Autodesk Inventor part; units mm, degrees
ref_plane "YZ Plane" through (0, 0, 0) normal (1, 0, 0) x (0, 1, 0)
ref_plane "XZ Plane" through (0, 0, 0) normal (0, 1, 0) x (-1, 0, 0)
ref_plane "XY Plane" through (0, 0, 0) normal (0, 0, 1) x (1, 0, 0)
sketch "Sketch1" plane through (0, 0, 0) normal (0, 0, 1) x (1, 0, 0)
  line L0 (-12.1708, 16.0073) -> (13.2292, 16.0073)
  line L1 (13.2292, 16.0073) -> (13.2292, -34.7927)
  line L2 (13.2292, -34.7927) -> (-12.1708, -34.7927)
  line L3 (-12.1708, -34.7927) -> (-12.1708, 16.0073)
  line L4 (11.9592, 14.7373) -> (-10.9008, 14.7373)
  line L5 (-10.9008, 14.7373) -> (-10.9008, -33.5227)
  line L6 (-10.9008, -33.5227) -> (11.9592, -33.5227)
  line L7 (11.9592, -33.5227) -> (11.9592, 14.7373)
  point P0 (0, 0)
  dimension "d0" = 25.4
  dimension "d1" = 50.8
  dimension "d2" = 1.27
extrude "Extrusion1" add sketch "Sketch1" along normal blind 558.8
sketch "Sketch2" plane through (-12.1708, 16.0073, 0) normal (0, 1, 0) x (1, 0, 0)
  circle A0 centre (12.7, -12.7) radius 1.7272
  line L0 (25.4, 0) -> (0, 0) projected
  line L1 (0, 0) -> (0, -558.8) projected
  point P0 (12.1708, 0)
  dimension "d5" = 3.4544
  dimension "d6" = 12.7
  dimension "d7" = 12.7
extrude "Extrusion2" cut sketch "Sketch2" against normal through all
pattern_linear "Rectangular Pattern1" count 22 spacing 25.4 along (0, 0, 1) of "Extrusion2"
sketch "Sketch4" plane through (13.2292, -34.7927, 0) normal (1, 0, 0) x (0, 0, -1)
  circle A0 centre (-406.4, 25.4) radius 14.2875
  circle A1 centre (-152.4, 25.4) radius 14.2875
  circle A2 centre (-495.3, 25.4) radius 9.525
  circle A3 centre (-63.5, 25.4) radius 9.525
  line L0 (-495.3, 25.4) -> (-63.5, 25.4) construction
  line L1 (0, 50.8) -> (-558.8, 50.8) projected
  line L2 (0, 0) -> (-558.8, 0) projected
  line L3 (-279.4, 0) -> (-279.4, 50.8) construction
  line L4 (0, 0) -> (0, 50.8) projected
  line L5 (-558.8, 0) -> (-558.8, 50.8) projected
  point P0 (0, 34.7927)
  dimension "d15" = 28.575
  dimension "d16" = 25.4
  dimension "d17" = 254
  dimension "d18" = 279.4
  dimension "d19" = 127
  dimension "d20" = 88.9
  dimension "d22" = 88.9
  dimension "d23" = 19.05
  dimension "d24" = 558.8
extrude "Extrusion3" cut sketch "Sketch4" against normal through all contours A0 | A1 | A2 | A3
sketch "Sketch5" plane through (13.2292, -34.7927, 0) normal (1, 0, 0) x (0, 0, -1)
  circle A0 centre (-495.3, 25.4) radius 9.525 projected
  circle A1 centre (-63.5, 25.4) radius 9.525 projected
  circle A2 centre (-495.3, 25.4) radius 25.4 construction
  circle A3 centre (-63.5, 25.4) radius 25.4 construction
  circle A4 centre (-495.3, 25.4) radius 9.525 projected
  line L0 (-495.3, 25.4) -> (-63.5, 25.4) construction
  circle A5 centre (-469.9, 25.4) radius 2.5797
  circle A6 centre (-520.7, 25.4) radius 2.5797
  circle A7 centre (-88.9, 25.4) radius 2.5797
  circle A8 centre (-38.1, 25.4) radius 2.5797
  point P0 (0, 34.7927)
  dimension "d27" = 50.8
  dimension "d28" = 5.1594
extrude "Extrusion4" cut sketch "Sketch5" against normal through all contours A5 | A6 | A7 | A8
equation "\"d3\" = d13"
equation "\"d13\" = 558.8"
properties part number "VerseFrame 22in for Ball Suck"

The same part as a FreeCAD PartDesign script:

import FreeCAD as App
import Part
import Sketcher
Q = App.Units.Quantity

doc = App.newDocument("Part")
body = doc.addObject("PartDesign::Body", "Body")

sketch1 = body.newObject("Sketcher::SketchObject", "Sketch")
sketch1.AttachmentSupport = (doc.getObject("XY_Plane"), [""])
sketch1.MapMode = "FlatFace"
sketch1.addGeometry([
    Part.LineSegment(App.Vector(13, 16, 0), App.Vector(-12, 16, 0)),
    Part.LineSegment(App.Vector(-12, 16, 0), App.Vector(-12, -35, 0)),
    Part.LineSegment(App.Vector(-12, -35, 0), App.Vector(13, -35, 0)),
    Part.LineSegment(App.Vector(13, -35, 0), App.Vector(13, 16, 0)),
    Part.LineSegment(App.Vector(-11, 15, 0), App.Vector(12, 15, 0)),
    Part.LineSegment(App.Vector(12, 15, 0), App.Vector(12, -34, 0)),
    Part.LineSegment(App.Vector(12, -34, 0), App.Vector(-11, -34, 0)),
    Part.LineSegment(App.Vector(-11, -34, 0), App.Vector(-11, 15, 0)),
], False)
sketch1.addConstraint([
    Sketcher.Constraint("Coincident", 0, 2, 1, 1),
    Sketcher.Constraint("Coincident", 1, 2, 2, 1),
    Sketcher.Constraint("Coincident", 2, 2, 3, 1),
    Sketcher.Constraint("Coincident", 3, 2, 0, 1),
    Sketcher.Constraint("Coincident", 4, 2, 5, 1),
    Sketcher.Constraint("Coincident", 5, 2, 6, 1),
    Sketcher.Constraint("Coincident", 6, 2, 7, 1),
    Sketcher.Constraint("Coincident", 7, 2, 4, 1),
    Sketcher.Constraint("Horizontal", 0),
    Sketcher.Constraint("Vertical", 1),
    Sketcher.Constraint("Horizontal", 2),
    Sketcher.Constraint("Vertical", 3),
    Sketcher.Constraint("Horizontal", 4),
    Sketcher.Constraint("Vertical", 5),
    Sketcher.Constraint("Horizontal", 6),
    Sketcher.Constraint("Vertical", 7),
    Sketcher.Constraint("DistanceX", 0, 2, 0, 1, Q("1 in")),
    Sketcher.Constraint("DistanceY", 1, 2, 1, 1, Q("2 in")),
    Sketcher.Constraint("DistanceX", 4, 2, 3, 2, Q("0.05 in")),
    Sketcher.Constraint("DistanceY", 4, 2, 3, 2, Q("0.05 in")),
    Sketcher.Constraint("DistanceY", 2, 2, 5, 2, Q("0.05 in")),
    Sketcher.Constraint("DistanceX", 1, 2, 6, 2, Q("0.05 in")),
    Sketcher.Constraint("DistanceY", -1, 1, 0, 2, Q("0.6302 in")),
    Sketcher.Constraint("DistanceX", 0, 2, -1, 1, 12.1708),
])
pad1 = body.newObject("PartDesign::Pad", "Pad")
pad1.Profile = sketch1
pad1.Length = Q("22 in")

sketch2 = body.newObject("Sketcher::SketchObject", "Sketch001")
sketch2.AttachmentSupport = (doc.getObject("XZ_Plane"), [""])
sketch2.MapMode = "FlatFace"
sketch2.AttachmentOffset = App.Placement(App.Vector(0, 0, -0.6302087 * 25.4), App.Rotation())
sketch2.addGeometry(Part.Circle(App.Vector(0.5, 12.7, 0), App.Vector(0, 0, 1), 1.7), False)
sketch2.addConstraint([
    Sketcher.Constraint("Diameter", 0, Q("0.136 in")),
    Sketcher.Constraint("DistanceY", -1, 1, 0, 3, Q("0.5 in")),
    Sketcher.Constraint("DistanceX", -1, 1, 0, 3, 0.5292),
])
pocket1 = body.newObject("PartDesign::Pocket", "Pocket")
pocket1.Profile = sketch2
pocket1.Type = "ThroughAll"
pocket1.Reversed = True
doc.recompute()

linearpattern = body.newObject("PartDesign::LinearPattern", "LinearPattern")
linearpattern.Originals = [pocket1]
linearpattern.Direction = (doc.getObject("Z_Axis"), [""])
linearpattern.Mode = "offset"
linearpattern.Offset = Q("1 in")
linearpattern.Occurrences = 22
body.Tip = linearpattern

sketch3 = body.newObject("Sketcher::SketchObject", "Sketch002")
sketch3.AttachmentSupport = (doc.getObject("YZ_Plane"), [""])
sketch3.MapMode = "FlatFace"
sketch3.AttachmentOffset = App.Placement(App.Vector(0, 0, 13.2292), App.Rotation())
sketch3.addGeometry([
    Part.Circle(App.Vector(-9, 406, 0), App.Vector(0, 0, 1), 14),
    Part.Circle(App.Vector(-9, 152, 0), App.Vector(0, 0, 1), 14),
    Part.Circle(App.Vector(-9, 495, 0), App.Vector(0, 0, 1), 10),
    Part.Circle(App.Vector(-9, 64, 0), App.Vector(0, 0, 1), 10),
], False)
sketch3.addConstraint([
    Sketcher.Constraint("Equal", 0, 1),
    Sketcher.Constraint("Equal", 2, 3),
    Sketcher.Constraint("Vertical", 0, 3, 1, 3),
    Sketcher.Constraint("Vertical", 1, 3, 2, 3),
    Sketcher.Constraint("Vertical", 2, 3, 3, 3),
    Sketcher.Constraint("Diameter", 2, Q("0.75 in")),
    Sketcher.Constraint("Diameter", 0, Q("1.125 in")),
    Sketcher.Constraint("DistanceY", 1, 3, 0, 3, Q("10 in")),
    Sketcher.Constraint("DistanceY", 0, 3, 2, 3, Q("3.5 in")),
    Sketcher.Constraint("DistanceY", 3, 3, 1, 3, Q("3.5 in")),
    Sketcher.Constraint("DistanceY", -1, 1, 0, 3, Q("16 in")),
    Sketcher.Constraint("DistanceX", 0, 3, -1, 1, Q("0.3698 in")),
])
pocket2 = body.newObject("PartDesign::Pocket", "Pocket001")
pocket2.Profile = sketch3
pocket2.Type = "ThroughAll"

sketch4 = body.newObject("Sketcher::SketchObject", "Sketch003")
sketch4.AttachmentSupport = (doc.getObject("YZ_Plane"), [""])
sketch4.MapMode = "FlatFace"
sketch4.AttachmentOffset = App.Placement(App.Vector(0, 0, 13.2292), App.Rotation())
sketch4.addGeometry([
    Part.Circle(App.Vector(-9.4, 469.9, 0), App.Vector(0, 0, 1), 2.6),
    Part.Circle(App.Vector(-9.4, 520.7, 0), App.Vector(0, 0, 1), 2.6),
    Part.Circle(App.Vector(-9.4, 88.9, 0), App.Vector(0, 0, 1), 2.6),
    Part.Circle(App.Vector(-9.4, 38.1, 0), App.Vector(0, 0, 1), 2.6),
], False)
sketch4.addConstraint([
    Sketcher.Constraint("Equal", 0, 1),
    Sketcher.Constraint("Equal", 1, 2),
    Sketcher.Constraint("Equal", 2, 3),
    Sketcher.Constraint("Vertical", 0, 3, 1, 3),
    Sketcher.Constraint("Vertical", 1, 3, 2, 3),
    Sketcher.Constraint("Vertical", 2, 3, 3, 3),
    Sketcher.Constraint("Diameter", 0, Q("0.203126 in")),
    Sketcher.Constraint("DistanceY", 0, 3, 1, 3, Q("2 in")),
    Sketcher.Constraint("DistanceY", 3, 3, 2, 3, Q("2 in")),
    Sketcher.Constraint("DistanceY", 2, 3, 0, 3, Q("15 in")),
    Sketcher.Constraint("DistanceY", -1, 1, 0, 3, Q("18.5 in")),
    Sketcher.Constraint("DistanceX", 0, 3, -1, 1, Q("0.3698 in")),
])
pocket3 = body.newObject("PartDesign::Pocket", "Pocket002")
pocket3.Profile = sketch4
pocket3.Type = "ThroughAll"

doc.recompute()
